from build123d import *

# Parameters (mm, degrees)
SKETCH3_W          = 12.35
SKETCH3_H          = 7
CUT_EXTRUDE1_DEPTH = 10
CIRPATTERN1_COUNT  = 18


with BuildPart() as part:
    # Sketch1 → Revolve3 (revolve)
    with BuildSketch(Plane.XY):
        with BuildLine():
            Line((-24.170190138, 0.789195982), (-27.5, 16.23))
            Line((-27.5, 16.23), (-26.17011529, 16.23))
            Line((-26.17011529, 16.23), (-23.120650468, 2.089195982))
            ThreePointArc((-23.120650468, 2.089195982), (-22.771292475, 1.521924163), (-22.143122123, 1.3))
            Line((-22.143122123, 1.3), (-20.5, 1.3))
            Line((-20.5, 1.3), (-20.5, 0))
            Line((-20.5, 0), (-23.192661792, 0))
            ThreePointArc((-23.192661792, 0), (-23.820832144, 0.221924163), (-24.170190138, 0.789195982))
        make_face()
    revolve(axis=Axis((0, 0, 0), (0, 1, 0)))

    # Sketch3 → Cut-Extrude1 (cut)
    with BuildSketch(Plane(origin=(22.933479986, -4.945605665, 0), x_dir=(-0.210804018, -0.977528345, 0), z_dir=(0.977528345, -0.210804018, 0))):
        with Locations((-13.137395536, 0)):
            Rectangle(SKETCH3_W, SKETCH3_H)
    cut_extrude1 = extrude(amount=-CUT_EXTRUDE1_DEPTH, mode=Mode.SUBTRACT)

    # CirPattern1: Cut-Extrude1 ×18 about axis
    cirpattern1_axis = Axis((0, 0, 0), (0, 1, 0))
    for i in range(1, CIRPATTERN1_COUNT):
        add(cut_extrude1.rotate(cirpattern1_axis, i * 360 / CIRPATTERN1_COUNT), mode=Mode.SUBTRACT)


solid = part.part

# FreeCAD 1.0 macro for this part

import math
import FreeCAD as App
import Part
import Sketcher

V = App.Vector

doc = App.newDocument("Part")
body = doc.addObject("PartDesign::Body", "Body")

# Sketch on XY plane
sketch1 = body.newObject("Sketcher::SketchObject", "Sketch")
sketch1.AttachmentSupport = (doc.getObject("XY_Plane"), [""])
sketch1.MapMode = "FlatFace"
sketch1.addGeometry(Part.LineSegment(V(-27.5, 16.2, 0), V(-24.2, 0.8, 0)), False)
sketch1.addGeometry(Part.ArcOfCircle(Part.Circle(V(-23.2, 1, 0), V(0, 0, 1), 1), math.radians(-168), math.radians(-90)), False)
sketch1.addGeometry(Part.LineSegment(V(-23.2, 0, 0), V(-20.5, 0, 0)), False)
sketch1.addGeometry(Part.LineSegment(V(-20.5, 0, 0), V(-20.5, 1.3, 0)), False)
sketch1.addGeometry(Part.LineSegment(V(-20.5, 1.3, 0), V(-22.1, 1.3, 0)), False)
sketch1.addGeometry(Part.ArcOfCircle(Part.Circle(V(-22.1, 2.3, 0), V(0, 0, 1), 1), math.radians(-168), math.radians(-90)), False)
sketch1.addGeometry(Part.LineSegment(V(-23.1, 2.1, 0), V(-26.2, 16.2, 0)), False)
sketch1.addGeometry(Part.LineSegment(V(-26.2, 16.2, 0), V(-27.5, 16.2, 0)), False)
sketch1.addConstraint(Sketcher.Constraint("Tangent", 0, 2, 1, 1))
sketch1.addConstraint(Sketcher.Constraint("Tangent", 1, 2, 2, 1))
sketch1.addConstraint(Sketcher.Constraint("Coincident", 2, 2, 3, 1))
sketch1.addConstraint(Sketcher.Constraint("Coincident", 3, 2, 4, 1))
sketch1.addConstraint(Sketcher.Constraint("Tangent", 4, 2, 5, 2))
sketch1.addConstraint(Sketcher.Constraint("Tangent", 5, 1, 6, 1))
sketch1.addConstraint(Sketcher.Constraint("Coincident", 6, 2, 7, 1))
sketch1.addConstraint(Sketcher.Constraint("Coincident", 7, 2, 0, 1))
sketch1.addConstraint(Sketcher.Constraint("Horizontal", 2))
sketch1.addConstraint(Sketcher.Constraint("Vertical", 3))
sketch1.addConstraint(Sketcher.Constraint("Horizontal", 4))
sketch1.addConstraint(Sketcher.Constraint("Horizontal", 7))
sketch1.addConstraint(Sketcher.Constraint("Equal", 1, 5))
sketch1.addConstraint(Sketcher.Constraint("PointOnObject", 1, 2, -1))
sketch1.addConstraint(Sketcher.Constraint("Parallel", 0, 6))
sketch1.addConstraint(Sketcher.Constraint("Radius", 1, 1.0))
sketch1.addConstraint(Sketcher.Constraint("DistanceY", 3, 1, 3, 2, 1.3))
sketch1.addConstraint(Sketcher.Constraint("DistanceX", 2, 2, -1, 1, 20.5))
sketch1.addConstraint(Sketcher.Constraint("DistanceX", 7, 2, -1, 1, 27.5))
sketch1.addConstraint(Sketcher.Constraint("DistanceY", -1, 1, 6, 2, 16.23))
sketch1.addConstraint(Sketcher.Constraint("DistanceX", 2, 1, 2, 2, 2.692662))
sketch1.addConstraint(Sketcher.Constraint("DistanceX", 4, 2, 4, 1, 1.643122))
revolution = body.newObject("PartDesign::Revolution", "Revolution")
revolution.Profile = sketch1
revolution.ReferenceAxis = (sketch1, ["V_Axis"])
revolution.Angle = 360

# Sketch on an angled plane
sketch2 = body.newObject("Sketcher::SketchObject", "Sketch001")
sketch2.Placement = App.Placement(V(22.93348, -4.945606, 0), App.Rotation(V(-0.210804018, -0.977528345, 0), V(0, 0, -0.999999999), V(0.977528345, -0.210804018, 0), "ZXY"))
sketch2.addGeometry(Part.LineSegment(V(-19, 3, 0), V(-19, -3, 0)), False)
sketch2.addGeometry(Part.LineSegment(V(-19, -3, 0), V(-7, -3, 0)), False)
sketch2.addGeometry(Part.LineSegment(V(-7, -3, 0), V(-7, 3, 0)), False)
sketch2.addGeometry(Part.LineSegment(V(-7, 3, 0), V(-19, 3, 0)), False)
sketch2.addConstraint(Sketcher.Constraint("Coincident", 0, 2, 1, 1))
sketch2.addConstraint(Sketcher.Constraint("Coincident", 1, 2, 2, 1))
sketch2.addConstraint(Sketcher.Constraint("Coincident", 2, 2, 3, 1))
sketch2.addConstraint(Sketcher.Constraint("Coincident", 3, 2, 0, 1))
sketch2.addConstraint(Sketcher.Constraint("Vertical", 0))
sketch2.addConstraint(Sketcher.Constraint("Horizontal", 1))
sketch2.addConstraint(Sketcher.Constraint("Vertical", 2))
sketch2.addConstraint(Sketcher.Constraint("Horizontal", 3))
sketch2.addConstraint(Sketcher.Constraint("DistanceY", 0, 2, 0, 1, 7.0))
sketch2.addConstraint(Sketcher.Constraint("DistanceX", 1, 1, 1, 2, 12.35))
sketch2.addConstraint(Sketcher.Constraint("DistanceY", 0, 2, -1, 1, 3.5))
sketch2.addConstraint(Sketcher.Constraint("DistanceX", 0, 2, -1, 1, 19.312396))
pocket1 = body.newObject("PartDesign::Pocket", "Pocket")
pocket1.Profile = sketch2
pocket1.Length = 10
doc.recompute()

polarpattern = body.newObject("PartDesign::PolarPattern", "PolarPattern")
polarpattern.Originals = [pocket1]
polarpattern.Axis = (doc.getObject("Y_Axis"), [""])
polarpattern.Angle = 360
polarpattern.Occurrences = 18
body.Tip = polarpattern

doc.recompute()
